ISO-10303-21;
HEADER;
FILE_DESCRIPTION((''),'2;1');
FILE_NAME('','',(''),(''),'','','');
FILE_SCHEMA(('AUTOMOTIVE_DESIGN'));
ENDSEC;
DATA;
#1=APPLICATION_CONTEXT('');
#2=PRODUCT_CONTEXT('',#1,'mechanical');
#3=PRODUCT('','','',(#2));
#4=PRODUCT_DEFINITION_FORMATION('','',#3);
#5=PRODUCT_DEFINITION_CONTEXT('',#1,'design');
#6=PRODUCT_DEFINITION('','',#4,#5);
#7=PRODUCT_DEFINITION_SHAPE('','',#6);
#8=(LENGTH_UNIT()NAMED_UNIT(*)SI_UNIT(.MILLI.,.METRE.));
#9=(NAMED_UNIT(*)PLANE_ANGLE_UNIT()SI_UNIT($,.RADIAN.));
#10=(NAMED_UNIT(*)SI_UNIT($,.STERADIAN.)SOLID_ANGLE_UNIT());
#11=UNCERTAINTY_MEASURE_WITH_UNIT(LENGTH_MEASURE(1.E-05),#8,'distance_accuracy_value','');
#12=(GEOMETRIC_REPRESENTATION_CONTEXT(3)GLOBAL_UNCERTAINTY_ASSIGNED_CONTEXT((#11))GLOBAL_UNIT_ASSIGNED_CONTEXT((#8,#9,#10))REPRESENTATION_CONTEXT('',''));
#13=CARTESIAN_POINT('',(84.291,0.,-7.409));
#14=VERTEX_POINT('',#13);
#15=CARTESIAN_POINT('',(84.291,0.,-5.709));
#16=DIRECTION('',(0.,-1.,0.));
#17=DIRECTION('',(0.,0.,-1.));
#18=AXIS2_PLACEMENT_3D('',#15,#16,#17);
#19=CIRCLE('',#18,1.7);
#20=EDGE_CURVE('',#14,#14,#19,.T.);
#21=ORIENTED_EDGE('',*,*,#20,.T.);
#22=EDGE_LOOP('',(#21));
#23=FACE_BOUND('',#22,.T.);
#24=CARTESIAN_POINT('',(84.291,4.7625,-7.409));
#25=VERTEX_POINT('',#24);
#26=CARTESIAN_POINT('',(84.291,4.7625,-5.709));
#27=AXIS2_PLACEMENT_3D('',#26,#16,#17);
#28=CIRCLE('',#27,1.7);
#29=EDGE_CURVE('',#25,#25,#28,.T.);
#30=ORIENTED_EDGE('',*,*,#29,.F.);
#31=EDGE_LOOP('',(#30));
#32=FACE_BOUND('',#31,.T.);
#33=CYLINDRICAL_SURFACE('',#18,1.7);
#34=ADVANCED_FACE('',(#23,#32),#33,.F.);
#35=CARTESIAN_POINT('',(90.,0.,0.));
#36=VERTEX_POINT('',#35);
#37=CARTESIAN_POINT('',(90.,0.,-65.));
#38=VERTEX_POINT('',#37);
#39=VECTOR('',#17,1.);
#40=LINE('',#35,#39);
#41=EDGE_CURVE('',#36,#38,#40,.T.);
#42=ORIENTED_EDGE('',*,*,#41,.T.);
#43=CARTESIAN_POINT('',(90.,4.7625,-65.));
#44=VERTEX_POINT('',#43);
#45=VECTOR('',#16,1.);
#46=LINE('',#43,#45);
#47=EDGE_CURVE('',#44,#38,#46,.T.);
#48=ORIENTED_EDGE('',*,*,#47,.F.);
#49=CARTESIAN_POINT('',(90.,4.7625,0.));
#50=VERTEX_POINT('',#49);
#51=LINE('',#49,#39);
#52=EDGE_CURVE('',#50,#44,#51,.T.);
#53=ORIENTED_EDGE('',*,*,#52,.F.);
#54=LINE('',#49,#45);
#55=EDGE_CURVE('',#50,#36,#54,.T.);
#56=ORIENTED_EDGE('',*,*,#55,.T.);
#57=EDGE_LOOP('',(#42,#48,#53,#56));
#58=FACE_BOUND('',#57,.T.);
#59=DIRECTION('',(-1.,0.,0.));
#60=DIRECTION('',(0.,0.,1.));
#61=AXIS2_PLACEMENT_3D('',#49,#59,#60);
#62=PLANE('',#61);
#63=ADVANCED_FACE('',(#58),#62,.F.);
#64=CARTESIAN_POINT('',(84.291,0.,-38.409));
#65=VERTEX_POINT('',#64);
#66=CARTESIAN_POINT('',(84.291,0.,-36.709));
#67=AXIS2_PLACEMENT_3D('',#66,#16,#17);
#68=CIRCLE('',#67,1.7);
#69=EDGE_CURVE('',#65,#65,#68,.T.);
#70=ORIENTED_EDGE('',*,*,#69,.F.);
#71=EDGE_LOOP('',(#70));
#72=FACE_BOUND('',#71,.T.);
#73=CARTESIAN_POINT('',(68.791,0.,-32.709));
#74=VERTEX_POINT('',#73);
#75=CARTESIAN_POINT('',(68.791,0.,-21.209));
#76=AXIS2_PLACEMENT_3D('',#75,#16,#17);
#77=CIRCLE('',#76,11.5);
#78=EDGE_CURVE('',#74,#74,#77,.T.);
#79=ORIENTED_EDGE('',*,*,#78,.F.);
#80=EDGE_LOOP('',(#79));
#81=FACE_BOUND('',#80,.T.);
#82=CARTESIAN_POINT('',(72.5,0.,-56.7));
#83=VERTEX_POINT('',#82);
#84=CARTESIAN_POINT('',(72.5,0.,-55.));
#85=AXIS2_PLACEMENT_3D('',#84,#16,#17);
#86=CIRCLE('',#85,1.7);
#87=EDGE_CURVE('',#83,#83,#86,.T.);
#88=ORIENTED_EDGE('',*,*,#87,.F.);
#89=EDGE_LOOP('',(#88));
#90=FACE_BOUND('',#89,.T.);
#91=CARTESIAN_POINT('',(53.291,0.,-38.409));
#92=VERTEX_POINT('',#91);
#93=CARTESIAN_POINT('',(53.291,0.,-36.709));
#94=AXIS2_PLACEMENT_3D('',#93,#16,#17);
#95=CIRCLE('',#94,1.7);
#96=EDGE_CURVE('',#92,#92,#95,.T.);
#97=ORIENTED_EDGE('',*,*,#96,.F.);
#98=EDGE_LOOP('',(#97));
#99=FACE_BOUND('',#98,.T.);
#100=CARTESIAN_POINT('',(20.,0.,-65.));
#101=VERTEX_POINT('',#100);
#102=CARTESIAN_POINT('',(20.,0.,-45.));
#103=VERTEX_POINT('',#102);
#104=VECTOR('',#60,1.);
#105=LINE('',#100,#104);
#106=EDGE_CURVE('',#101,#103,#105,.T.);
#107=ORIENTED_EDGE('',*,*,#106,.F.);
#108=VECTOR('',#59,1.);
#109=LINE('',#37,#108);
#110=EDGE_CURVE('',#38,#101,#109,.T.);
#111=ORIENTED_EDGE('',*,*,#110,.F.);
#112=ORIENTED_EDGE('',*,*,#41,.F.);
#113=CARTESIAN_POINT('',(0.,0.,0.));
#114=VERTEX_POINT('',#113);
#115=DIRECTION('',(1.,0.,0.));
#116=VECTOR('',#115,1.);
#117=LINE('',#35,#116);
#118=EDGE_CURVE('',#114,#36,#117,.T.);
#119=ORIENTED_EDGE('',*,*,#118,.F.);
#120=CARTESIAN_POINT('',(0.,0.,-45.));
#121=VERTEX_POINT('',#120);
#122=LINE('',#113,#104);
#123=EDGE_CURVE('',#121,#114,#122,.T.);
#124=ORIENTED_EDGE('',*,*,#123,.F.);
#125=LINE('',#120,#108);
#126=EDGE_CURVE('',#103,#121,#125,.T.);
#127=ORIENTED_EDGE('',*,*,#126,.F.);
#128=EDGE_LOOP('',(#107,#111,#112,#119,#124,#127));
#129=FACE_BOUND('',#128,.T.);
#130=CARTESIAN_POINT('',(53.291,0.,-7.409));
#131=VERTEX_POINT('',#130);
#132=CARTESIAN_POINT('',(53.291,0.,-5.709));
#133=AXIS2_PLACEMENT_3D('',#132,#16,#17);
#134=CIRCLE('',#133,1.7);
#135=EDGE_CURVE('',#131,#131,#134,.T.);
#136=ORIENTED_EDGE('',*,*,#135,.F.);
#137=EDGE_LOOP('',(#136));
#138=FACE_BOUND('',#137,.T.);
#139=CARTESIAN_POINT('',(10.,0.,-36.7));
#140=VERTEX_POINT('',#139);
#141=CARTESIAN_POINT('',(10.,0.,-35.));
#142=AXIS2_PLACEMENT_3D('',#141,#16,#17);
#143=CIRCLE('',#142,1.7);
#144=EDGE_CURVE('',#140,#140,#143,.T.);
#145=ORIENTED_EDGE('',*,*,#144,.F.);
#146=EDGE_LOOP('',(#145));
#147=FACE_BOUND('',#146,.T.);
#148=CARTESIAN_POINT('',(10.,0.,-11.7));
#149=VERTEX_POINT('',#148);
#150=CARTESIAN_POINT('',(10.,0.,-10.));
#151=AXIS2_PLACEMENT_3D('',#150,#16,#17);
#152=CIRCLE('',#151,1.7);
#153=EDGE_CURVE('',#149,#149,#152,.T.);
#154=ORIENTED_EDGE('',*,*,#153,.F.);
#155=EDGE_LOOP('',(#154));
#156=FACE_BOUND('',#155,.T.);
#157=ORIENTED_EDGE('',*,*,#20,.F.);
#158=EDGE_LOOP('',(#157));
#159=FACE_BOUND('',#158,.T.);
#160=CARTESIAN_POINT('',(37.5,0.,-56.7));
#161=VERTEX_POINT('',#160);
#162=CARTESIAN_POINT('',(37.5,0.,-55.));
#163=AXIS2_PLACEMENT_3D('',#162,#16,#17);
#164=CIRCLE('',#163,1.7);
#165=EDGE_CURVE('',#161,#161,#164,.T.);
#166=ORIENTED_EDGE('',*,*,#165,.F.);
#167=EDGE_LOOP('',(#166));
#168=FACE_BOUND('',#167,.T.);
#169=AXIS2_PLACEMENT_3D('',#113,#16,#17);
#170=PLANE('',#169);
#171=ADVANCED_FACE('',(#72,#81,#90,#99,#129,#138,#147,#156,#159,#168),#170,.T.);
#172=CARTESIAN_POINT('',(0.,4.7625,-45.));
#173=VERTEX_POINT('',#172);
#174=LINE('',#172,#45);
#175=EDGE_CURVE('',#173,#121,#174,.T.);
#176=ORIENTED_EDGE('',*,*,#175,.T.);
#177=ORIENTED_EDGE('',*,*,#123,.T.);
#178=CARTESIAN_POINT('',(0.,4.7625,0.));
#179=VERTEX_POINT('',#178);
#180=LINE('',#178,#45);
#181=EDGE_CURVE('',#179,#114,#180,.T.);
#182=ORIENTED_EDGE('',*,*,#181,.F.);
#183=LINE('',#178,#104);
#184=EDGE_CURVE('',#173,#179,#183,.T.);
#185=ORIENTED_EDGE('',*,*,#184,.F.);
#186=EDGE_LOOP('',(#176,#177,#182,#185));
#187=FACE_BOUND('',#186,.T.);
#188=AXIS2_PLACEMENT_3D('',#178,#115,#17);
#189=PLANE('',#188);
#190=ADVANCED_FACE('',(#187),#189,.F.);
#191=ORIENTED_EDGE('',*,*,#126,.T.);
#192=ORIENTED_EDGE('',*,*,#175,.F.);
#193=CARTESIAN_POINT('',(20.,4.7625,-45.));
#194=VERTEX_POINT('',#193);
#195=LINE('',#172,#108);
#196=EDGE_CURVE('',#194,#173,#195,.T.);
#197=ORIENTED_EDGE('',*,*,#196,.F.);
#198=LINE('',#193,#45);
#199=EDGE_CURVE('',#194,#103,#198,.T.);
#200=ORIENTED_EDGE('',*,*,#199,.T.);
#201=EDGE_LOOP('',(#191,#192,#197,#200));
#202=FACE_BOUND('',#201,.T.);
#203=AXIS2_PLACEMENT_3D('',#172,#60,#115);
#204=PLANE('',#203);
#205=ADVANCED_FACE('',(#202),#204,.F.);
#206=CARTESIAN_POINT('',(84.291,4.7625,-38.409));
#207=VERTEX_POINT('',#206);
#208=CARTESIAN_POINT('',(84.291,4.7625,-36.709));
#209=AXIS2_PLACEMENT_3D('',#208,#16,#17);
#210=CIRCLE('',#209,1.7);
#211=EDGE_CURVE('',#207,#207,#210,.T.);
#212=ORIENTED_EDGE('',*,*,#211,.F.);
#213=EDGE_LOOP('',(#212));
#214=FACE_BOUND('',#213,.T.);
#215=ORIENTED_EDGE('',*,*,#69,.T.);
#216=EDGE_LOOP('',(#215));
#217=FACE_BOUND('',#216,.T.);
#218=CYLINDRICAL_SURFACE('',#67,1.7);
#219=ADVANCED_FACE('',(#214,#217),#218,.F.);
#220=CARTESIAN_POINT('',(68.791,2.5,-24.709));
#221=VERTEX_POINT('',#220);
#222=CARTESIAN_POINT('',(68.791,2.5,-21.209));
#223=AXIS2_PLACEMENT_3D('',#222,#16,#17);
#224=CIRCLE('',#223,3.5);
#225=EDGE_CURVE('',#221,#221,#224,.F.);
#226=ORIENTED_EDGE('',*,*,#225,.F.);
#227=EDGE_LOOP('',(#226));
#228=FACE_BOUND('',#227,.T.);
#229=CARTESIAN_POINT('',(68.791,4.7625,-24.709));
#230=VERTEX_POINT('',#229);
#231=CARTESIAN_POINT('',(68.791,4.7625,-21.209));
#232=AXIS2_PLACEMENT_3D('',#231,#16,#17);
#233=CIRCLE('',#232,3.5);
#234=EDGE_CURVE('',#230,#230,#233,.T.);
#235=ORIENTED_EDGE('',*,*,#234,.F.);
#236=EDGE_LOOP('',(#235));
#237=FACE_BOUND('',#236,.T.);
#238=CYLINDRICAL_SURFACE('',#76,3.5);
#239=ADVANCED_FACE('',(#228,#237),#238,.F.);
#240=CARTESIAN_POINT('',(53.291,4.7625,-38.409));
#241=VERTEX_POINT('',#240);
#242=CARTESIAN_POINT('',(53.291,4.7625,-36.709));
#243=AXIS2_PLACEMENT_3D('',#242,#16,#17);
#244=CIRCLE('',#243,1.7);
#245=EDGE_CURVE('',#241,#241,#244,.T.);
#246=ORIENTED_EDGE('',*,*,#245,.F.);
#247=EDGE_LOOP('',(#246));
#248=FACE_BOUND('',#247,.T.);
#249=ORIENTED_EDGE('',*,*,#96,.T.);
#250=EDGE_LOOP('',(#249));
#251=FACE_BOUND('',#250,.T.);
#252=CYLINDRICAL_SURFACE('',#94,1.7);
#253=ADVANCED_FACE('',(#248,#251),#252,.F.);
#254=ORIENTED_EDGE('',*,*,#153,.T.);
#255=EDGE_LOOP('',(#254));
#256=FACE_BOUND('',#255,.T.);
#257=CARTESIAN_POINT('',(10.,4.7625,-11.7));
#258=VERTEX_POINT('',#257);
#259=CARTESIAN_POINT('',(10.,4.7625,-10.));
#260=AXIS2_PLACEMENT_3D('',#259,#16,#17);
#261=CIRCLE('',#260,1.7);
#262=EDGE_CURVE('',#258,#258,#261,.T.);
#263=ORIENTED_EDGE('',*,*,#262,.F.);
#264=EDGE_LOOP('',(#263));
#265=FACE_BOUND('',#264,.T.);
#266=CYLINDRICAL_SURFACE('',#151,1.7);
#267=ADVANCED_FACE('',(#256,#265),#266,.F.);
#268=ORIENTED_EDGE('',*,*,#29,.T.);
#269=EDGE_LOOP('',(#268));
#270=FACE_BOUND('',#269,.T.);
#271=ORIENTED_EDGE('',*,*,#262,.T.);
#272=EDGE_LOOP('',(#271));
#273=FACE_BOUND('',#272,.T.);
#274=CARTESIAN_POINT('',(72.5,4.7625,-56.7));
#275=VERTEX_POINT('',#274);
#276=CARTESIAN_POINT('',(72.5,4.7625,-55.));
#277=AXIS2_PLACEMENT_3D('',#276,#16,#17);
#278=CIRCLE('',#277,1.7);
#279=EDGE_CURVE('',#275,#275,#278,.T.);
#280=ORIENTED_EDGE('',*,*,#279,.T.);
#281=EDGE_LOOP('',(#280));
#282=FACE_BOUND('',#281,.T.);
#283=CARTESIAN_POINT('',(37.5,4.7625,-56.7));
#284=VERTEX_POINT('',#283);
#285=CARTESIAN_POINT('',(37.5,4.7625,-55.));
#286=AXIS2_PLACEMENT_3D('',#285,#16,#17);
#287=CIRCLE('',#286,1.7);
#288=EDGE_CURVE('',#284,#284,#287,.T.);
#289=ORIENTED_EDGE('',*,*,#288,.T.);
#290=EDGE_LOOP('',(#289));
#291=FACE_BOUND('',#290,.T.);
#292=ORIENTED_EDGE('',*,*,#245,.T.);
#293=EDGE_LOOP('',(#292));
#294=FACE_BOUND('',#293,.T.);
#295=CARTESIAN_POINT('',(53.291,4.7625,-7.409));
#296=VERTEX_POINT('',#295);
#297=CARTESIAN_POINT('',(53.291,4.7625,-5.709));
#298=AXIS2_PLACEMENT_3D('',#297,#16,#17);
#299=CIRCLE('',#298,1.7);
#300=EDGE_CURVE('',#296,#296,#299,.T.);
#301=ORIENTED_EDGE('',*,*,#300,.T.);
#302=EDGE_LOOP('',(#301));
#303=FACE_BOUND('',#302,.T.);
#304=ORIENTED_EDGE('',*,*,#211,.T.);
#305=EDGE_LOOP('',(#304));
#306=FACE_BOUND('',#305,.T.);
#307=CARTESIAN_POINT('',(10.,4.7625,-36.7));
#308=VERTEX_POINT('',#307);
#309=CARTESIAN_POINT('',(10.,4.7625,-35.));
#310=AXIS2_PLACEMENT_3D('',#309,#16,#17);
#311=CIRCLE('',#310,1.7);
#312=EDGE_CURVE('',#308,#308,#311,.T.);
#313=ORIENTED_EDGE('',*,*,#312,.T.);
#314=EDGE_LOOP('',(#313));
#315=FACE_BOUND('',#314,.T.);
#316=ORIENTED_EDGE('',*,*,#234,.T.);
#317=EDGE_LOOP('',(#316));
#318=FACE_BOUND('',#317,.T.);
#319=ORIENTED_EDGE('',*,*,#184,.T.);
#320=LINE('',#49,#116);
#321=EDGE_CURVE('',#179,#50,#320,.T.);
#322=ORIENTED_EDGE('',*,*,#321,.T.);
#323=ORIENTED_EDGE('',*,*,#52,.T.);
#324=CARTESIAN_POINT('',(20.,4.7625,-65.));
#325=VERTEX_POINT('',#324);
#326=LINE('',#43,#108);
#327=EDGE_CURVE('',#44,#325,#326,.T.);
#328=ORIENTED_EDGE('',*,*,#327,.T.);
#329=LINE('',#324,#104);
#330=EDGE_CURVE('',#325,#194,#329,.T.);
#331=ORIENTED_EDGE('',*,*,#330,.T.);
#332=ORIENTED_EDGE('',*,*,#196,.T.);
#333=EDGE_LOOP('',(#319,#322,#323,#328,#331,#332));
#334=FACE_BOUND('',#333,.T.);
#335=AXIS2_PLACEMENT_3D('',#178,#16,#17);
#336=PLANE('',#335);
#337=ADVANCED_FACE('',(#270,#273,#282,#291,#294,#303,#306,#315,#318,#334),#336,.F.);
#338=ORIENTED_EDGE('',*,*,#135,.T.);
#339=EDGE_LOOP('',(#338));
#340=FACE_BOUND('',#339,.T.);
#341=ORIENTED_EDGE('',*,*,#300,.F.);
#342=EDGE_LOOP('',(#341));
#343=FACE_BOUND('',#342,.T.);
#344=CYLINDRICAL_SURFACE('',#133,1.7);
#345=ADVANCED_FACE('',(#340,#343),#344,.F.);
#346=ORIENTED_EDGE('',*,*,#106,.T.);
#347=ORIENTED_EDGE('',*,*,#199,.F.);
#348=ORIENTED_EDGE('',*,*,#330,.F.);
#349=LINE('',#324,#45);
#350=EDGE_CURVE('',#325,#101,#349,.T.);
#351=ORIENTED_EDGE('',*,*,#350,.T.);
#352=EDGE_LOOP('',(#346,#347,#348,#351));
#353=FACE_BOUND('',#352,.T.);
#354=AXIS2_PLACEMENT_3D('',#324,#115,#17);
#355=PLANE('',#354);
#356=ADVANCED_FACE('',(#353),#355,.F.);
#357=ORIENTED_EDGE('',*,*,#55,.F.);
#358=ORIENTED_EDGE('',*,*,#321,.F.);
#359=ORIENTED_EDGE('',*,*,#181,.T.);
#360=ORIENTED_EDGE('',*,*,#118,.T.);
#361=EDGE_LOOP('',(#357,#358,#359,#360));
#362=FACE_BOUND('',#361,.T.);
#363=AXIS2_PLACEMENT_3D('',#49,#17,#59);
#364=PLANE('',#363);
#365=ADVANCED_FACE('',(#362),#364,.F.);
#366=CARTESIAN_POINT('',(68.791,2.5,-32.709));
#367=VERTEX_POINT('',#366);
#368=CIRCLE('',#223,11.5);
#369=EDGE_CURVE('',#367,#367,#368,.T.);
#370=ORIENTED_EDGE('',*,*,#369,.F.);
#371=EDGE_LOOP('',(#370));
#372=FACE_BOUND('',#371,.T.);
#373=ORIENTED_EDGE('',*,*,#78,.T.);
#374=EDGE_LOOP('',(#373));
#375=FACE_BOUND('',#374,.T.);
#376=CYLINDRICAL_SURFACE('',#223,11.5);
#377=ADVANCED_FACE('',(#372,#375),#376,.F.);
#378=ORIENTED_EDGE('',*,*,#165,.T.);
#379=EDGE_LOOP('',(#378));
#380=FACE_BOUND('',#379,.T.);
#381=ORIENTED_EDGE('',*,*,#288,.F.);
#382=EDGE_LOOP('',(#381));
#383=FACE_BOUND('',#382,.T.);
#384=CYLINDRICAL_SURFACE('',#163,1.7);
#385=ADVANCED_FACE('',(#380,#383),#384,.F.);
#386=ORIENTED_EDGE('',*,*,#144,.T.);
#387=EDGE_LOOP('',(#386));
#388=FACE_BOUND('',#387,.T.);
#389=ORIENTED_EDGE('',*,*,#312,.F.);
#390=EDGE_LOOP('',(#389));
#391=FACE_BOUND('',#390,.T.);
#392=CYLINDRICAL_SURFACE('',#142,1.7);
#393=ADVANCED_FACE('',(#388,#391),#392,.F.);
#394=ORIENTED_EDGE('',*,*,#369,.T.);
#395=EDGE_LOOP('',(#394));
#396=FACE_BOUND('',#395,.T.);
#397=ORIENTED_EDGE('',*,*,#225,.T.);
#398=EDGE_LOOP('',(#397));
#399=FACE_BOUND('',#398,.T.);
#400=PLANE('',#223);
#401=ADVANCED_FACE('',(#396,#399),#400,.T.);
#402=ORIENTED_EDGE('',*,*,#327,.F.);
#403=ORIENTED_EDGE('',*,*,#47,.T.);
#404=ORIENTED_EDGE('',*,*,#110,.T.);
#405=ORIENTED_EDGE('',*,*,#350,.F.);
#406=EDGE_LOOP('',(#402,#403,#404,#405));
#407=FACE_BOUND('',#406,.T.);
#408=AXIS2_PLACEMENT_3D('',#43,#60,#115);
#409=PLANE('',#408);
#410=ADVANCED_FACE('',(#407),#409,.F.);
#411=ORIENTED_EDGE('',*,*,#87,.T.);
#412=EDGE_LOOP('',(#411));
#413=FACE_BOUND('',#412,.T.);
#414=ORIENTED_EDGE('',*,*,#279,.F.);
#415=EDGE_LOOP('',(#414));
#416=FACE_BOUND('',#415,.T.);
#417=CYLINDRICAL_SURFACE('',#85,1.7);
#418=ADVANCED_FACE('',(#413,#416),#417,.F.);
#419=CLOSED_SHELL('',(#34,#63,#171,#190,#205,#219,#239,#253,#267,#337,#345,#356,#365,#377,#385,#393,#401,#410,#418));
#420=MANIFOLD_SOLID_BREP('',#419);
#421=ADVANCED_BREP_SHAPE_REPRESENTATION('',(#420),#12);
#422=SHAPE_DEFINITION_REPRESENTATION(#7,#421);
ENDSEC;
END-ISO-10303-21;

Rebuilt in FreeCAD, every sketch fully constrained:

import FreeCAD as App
import Part
import Sketcher
from FreeCAD import Vector

doc = App.newDocument("Part")
body = doc.addObject("PartDesign::Body", "Body")

# Sketch on XZ plane
sketch1 = doc.addObject("Sketcher::SketchObject", "Sketch")
body.addObject(sketch1)
sketch1.AttachmentSupport = (doc.XZ_Plane, [""])
sketch1.MapMode = "FlatFace"
sketch1.addGeometry(Part.LineSegment(Vector(0, -45, 0), Vector(0, 0, 0)), False)
sketch1.addGeometry(Part.LineSegment(Vector(0, 0, 0), Vector(90, 0, 0)), False)
sketch1.addGeometry(Part.LineSegment(Vector(90, 0, 0), Vector(90, -65, 0)), False)
sketch1.addGeometry(Part.LineSegment(Vector(90, -65, 0), Vector(20, -65, 0)), False)
sketch1.addGeometry(Part.LineSegment(Vector(20, -65, 0), Vector(20, -45, 0)), False)
sketch1.addGeometry(Part.LineSegment(Vector(20, -45, 0), Vector(0, -45, 0)), False)
sketch1.addConstraint(Sketcher.Constraint("Coincident", 0, 2, 1, 1))
sketch1.addConstraint(Sketcher.Constraint("Coincident", 1, 2, 2, 1))
sketch1.addConstraint(Sketcher.Constraint("Coincident", 2, 2, 3, 1))
sketch1.addConstraint(Sketcher.Constraint("Coincident", 3, 2, 4, 1))
sketch1.addConstraint(Sketcher.Constraint("Coincident", 4, 2, 5, 1))
sketch1.addConstraint(Sketcher.Constraint("Coincident", 5, 2, 0, 1))
sketch1.addConstraint(Sketcher.Constraint("Vertical", 0))
sketch1.addConstraint(Sketcher.Constraint("Horizontal", 1))
sketch1.addConstraint(Sketcher.Constraint("Vertical", 2))
sketch1.addConstraint(Sketcher.Constraint("Horizontal", 3))
sketch1.addConstraint(Sketcher.Constraint("Vertical", 4))
sketch1.addConstraint(Sketcher.Constraint("Horizontal", 5))
sketch1.addConstraint(Sketcher.Constraint("Coincident", 0, 2, -1, 1))
sketch1.addConstraint(Sketcher.Constraint("Equal", 5, 4))
sketch1.addConstraint(Sketcher.Constraint("DistanceX", 1, 1, 1, 2, 90.0))
sketch1.addConstraint(Sketcher.Constraint("DistanceX", 3, 2, 3, 1, 70.0))
sketch1.addConstraint(Sketcher.Constraint("DistanceY", 0, 1, 0, 2, 45.0))
pad1 = doc.addObject("PartDesign::Pad", "Pad")
body.addObject(pad1)
pad1.Profile = sketch1
pad1.Length = 4.7625
pad1.Reversed = True

# Sketch on XZ plane
sketch2 = doc.addObject("Sketcher::SketchObject", "Sketch001")
body.addObject(sketch2)
sketch2.AttachmentSupport = (doc.XZ_Plane, [""])
sketch2.MapMode = "FlatFace"
sketch2.addGeometry(Part.Circle(Vector(68.791, -21.209, 0), Vector(0, 0, 1), 3.5), False)
sketch2.addConstraint(Sketcher.Constraint("Diameter", 0, 7.0))
sketch2.addConstraint(Sketcher.Constraint("DistanceX", -1, 1, 0, 3, 68.791))
sketch2.addConstraint(Sketcher.Constraint("DistanceY", 0, 3, -1, 1, 21.209))
doc.recompute()
hole = doc.addObject("PartDesign::Hole", "Hole")
body.addObject(hole)
hole.Profile = sketch2
hole.ThreadType = "None"
hole.Diameter = 7
hole.DepthType = "ThroughAll"

# Sketch on XZ plane
sketch3 = doc.addObject("Sketcher::SketchObject", "Sketch002")
body.addObject(sketch3)
sketch3.AttachmentSupport = (doc.XZ_Plane, [""])
sketch3.MapMode = "FlatFace"
sketch3.addGeometry(Part.Circle(Vector(68.791, -21.209, 0), Vector(0, 0, 1), 11.5), False)
sketch3.addConstraint(Sketcher.Constraint("Diameter", 0, 23.0))
sketch3.addConstraint(Sketcher.Constraint("DistanceX", -1, 1, 0, 3, 68.791))
sketch3.addConstraint(Sketcher.Constraint("DistanceY", 0, 3, -1, 1, 21.209))
pocket1 = doc.addObject("PartDesign::Pocket", "Pocket")
body.addObject(pocket1)
pocket1.Profile = sketch3
pocket1.Length = 2.5

# Sketch on XZ plane
sketch4 = doc.addObject("Sketcher::SketchObject", "Sketch003")
body.addObject(sketch4)
sketch4.AttachmentSupport = (doc.XZ_Plane, [""])
sketch4.MapMode = "FlatFace"
sketch4.addGeometry(Part.Circle(Vector(10, -10, 0), Vector(0, 0, 1), 1.7), False)
sketch4.addGeometry(Part.Circle(Vector(10, -35, 0), Vector(0, 0, 1), 1.7), False)
sketch4.addGeometry(Part.Circle(Vector(37.5, -55, 0), Vector(0, 0, 1), 1.7), False)
sketch4.addGeometry(Part.Circle(Vector(72.5, -55, 0), Vector(0, 0, 1), 1.7), False)
sketch4.addGeometry(Part.Circle(Vector(84.291, -36.709, 0), Vector(0, 0, 1), 1.7), False)
sketch4.addGeometry(Part.Circle(Vector(84.291, -5.709, 0), Vector(0, 0, 1), 1.7), False)
sketch4.addGeometry(Part.Circle(Vector(53.291, -5.709, 0), Vector(0, 0, 1), 1.7), False)
sketch4.addGeometry(Part.Circle(Vector(53.291, -36.709, 0), Vector(0, 0, 1), 1.7), False)
sketch4.addConstraint(Sketcher.Constraint("Equal", 0, 1))
sketch4.addConstraint(Sketcher.Constraint("Equal", 1, 2))
sketch4.addConstraint(Sketcher.Constraint("Equal", 2, 3))
sketch4.addConstraint(Sketcher.Constraint("Equal", 3, 4))
sketch4.addConstraint(Sketcher.Constraint("Equal", 4, 5))
sketch4.addConstraint(Sketcher.Constraint("Equal", 5, 6))
sketch4.addConstraint(Sketcher.Constraint("Equal", 6, 7))
sketch4.addConstraint(Sketcher.Constraint("Horizontal", 2, 3, 3, 3))
sketch4.addConstraint(Sketcher.Constraint("Horizontal", 5, 3, 6, 3))
sketch4.addConstraint(Sketcher.Constraint("Horizontal", 4, 3, 7, 3))
sketch4.addConstraint(Sketcher.Constraint("Vertical", 0, 3, 1, 3))
sketch4.addConstraint(Sketcher.Constraint("Vertical", 4, 3, 5, 3))
sketch4.addConstraint(Sketcher.Constraint("Vertical", 6, 3, 7, 3))
sketch4.addConstraint(Sketcher.Constraint("Diameter", 0, 3.4))
sketch4.addConstraint(Sketcher.Constraint("DistanceX", -1, 1, 0, 3, 10.0))
sketch4.addConstraint(Sketcher.Constraint("DistanceY", 0, 3, -1, 1, 10.0))
sketch4.addConstraint(Sketcher.Constraint("DistanceY", 1, 3, -1, 1, 35.0))
sketch4.addConstraint(Sketcher.Constraint("DistanceY", 2, 3, -1, 1, 55.0))
sketch4.addConstraint(Sketcher.Constraint("DistanceX", 2, 3, 3, 3, 35.0))
sketch4.addConstraint(Sketcher.Constraint("DistanceY", 4, 3, 5, 3, 31.0))
sketch4.addConstraint(Sketcher.Constraint("DistanceX", 6, 3, 5, 3, 31.0))
sketch4.addConstraint(Sketcher.Constraint("DistanceX", -1, 1, 2, 3, 37.5))
sketch4.addConstraint(Sketcher.Constraint("DistanceX", -1, 1, 4, 3, 84.291))
sketch4.addConstraint(Sketcher.Constraint("DistanceY", 4, 3, -1, 1, 36.709))
doc.recompute()
hole2 = doc.addObject("PartDesign::Hole", "Hole001")
body.addObject(hole2)
hole2.Profile = sketch4
hole2.ThreadType = "None"
hole2.Diameter = 3.4
hole2.DepthType = "ThroughAll"

doc.recompute()
